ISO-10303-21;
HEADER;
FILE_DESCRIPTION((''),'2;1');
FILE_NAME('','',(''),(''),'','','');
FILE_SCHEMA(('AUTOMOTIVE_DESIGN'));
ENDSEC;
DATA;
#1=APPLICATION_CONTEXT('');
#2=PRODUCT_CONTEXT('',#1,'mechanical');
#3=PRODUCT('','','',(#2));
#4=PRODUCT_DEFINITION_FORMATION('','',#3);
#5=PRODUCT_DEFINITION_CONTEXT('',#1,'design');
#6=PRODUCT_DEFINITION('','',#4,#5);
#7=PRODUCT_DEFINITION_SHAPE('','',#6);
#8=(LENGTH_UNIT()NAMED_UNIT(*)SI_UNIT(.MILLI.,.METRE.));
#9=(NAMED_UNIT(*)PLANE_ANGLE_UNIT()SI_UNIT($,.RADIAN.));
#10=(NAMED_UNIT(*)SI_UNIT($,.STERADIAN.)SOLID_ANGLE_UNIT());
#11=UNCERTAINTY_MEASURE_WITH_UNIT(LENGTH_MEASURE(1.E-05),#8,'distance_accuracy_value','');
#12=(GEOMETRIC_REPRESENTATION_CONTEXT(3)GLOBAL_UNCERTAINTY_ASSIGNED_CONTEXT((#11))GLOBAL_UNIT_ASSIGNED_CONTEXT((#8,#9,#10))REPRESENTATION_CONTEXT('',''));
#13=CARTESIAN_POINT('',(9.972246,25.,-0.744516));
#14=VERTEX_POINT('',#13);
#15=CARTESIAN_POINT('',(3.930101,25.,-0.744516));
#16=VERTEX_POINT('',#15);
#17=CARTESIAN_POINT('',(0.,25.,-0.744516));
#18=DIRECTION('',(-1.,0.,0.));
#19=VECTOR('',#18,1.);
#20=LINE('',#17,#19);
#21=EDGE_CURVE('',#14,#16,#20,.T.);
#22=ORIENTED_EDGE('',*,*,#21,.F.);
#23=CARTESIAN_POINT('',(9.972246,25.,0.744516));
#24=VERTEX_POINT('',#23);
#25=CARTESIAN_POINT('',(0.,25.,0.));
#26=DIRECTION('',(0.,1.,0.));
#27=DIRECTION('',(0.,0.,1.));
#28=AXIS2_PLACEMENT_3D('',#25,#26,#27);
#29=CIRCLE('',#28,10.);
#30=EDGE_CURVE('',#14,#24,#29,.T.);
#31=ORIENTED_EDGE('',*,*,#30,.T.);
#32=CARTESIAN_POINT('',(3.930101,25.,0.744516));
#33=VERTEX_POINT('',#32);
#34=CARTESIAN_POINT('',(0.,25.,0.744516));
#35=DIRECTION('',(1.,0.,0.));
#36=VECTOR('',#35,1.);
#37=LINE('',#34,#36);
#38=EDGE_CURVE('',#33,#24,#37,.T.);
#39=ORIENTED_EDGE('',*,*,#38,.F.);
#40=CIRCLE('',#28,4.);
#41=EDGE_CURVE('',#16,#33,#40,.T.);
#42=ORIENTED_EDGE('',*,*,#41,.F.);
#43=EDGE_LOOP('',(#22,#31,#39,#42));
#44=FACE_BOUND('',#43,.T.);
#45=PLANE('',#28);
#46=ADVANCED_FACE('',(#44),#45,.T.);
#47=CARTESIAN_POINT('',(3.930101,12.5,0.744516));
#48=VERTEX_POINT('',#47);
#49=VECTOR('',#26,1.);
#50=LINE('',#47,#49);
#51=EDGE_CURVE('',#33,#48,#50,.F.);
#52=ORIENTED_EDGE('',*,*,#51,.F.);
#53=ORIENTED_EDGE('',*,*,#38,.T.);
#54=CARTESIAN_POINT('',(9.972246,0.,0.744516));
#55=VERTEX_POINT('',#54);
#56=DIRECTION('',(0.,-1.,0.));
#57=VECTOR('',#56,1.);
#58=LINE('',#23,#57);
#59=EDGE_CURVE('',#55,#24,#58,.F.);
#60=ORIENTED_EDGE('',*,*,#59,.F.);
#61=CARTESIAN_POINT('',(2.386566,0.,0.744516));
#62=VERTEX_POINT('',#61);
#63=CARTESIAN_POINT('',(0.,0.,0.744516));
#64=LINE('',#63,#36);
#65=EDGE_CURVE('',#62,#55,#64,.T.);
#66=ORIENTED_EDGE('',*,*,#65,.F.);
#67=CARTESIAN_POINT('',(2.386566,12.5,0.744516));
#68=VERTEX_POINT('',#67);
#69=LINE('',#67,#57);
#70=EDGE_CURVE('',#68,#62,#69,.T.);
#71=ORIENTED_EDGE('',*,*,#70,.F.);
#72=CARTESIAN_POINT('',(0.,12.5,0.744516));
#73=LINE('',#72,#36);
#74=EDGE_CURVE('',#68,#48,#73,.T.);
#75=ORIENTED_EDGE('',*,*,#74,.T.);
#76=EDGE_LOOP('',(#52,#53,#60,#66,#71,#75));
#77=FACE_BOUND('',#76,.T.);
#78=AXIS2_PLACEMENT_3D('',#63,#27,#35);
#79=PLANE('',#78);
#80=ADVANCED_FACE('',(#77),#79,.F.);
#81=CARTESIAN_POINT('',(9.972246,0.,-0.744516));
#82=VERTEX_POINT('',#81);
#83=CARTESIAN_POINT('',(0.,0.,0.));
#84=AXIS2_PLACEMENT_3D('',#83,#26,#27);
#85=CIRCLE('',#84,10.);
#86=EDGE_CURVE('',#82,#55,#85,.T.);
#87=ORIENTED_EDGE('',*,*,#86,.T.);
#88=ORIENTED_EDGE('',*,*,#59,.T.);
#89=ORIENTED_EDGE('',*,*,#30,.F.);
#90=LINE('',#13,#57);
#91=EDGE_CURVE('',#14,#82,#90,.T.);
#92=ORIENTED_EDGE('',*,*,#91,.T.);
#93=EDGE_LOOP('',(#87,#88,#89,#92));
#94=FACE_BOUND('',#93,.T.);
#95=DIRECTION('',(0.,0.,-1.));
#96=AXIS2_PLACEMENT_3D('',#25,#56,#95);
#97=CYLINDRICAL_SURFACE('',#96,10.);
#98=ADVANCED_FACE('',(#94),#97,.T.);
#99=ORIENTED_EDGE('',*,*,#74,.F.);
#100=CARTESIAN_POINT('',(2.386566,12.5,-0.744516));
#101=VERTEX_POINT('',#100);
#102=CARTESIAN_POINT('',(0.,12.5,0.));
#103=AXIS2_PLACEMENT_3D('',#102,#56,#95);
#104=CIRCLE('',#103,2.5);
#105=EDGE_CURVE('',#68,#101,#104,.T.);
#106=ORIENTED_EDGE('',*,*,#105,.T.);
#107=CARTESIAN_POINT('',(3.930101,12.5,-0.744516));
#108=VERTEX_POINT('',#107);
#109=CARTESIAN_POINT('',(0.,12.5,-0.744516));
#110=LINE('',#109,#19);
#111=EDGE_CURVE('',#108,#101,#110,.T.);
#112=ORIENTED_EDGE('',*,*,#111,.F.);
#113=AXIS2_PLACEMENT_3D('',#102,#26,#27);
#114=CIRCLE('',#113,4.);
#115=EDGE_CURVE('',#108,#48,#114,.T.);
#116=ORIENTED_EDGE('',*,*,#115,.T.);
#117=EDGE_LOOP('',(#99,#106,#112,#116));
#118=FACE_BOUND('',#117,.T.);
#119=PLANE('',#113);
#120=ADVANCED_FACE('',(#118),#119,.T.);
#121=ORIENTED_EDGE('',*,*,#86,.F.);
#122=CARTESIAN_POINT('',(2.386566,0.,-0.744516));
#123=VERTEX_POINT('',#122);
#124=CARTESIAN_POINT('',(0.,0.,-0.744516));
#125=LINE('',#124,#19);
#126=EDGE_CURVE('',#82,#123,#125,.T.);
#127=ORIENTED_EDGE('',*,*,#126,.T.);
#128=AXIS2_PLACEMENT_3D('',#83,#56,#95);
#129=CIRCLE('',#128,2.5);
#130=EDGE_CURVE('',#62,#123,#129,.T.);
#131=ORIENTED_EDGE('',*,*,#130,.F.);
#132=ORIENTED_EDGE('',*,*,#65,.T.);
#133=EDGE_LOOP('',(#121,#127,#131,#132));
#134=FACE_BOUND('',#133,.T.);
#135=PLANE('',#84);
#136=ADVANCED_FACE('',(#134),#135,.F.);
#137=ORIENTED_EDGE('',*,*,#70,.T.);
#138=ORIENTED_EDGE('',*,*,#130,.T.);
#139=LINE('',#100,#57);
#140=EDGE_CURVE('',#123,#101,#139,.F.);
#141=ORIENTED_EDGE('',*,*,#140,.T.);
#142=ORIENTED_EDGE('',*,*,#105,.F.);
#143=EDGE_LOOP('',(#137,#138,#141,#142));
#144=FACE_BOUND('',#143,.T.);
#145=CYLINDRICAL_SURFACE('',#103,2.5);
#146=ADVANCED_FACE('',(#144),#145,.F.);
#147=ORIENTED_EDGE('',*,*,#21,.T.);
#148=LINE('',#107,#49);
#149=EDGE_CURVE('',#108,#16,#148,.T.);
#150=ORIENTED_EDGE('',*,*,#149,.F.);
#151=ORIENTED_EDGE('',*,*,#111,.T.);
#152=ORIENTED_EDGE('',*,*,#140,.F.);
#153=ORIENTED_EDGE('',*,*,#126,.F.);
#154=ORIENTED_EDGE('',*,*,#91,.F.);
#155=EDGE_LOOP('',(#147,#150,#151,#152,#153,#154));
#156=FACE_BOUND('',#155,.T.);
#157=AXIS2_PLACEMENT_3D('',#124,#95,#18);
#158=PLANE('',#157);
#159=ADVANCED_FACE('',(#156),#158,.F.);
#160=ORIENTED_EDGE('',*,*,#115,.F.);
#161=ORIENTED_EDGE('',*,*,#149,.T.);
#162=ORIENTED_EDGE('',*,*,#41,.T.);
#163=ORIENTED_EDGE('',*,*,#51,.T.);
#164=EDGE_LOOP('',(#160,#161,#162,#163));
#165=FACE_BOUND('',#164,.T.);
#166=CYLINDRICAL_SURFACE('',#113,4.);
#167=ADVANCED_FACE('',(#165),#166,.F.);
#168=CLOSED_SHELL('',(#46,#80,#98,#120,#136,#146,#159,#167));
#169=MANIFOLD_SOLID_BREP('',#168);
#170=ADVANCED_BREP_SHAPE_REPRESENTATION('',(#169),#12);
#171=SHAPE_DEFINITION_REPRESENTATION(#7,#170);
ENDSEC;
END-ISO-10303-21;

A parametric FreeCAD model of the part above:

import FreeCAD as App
import Part
import Sketcher

doc = App.newDocument("Part")
body = doc.addObject("PartDesign::Body", "Body")

# Sketch on XZ plane
sketch1 = body.newObject("Sketcher::SketchObject", "Sketch")
sketch1.AttachmentSupport = (doc.getObject("XZ_Plane"), [""])
sketch1.MapMode = "FlatFace"
sketch1.addGeometry(Part.Circle(App.Vector(0, 0, 0), App.Vector(0, 0, 1), 10), False)
sketch1.addConstraint([
    Sketcher.Constraint("Coincident", 0, 3, -1, 1),
    Sketcher.Constraint("Diameter", 0, 20.0),
])
pad1 = body.newObject("PartDesign::Pad", "Pad")
pad1.Profile = sketch1
pad1.Length = 25
pad1.Reversed = True

# Sketch on XZ plane
sketch2 = body.newObject("Sketcher::SketchObject", "Sketch001")
sketch2.AttachmentSupport = (doc.getObject("XZ_Plane"), [""])
sketch2.MapMode = "FlatFace"
sketch2.AttachmentOffset = App.Placement(App.Vector(0, 0, -25), App.Rotation())
sketch2.addGeometry(Part.Circle(App.Vector(0, 0, 0), App.Vector(0, 0, 1), 4), False)
sketch2.addConstraint([
    Sketcher.Constraint("Coincident", 0, 3, -1, 1),
    Sketcher.Constraint("Diameter", 0, 8.0),
])
pocket1 = body.newObject("PartDesign::Pocket", "Pocket")
pocket1.Profile = sketch2
pocket1.Length = 12.5
pocket1.Reversed = True

# Sketch on XZ plane
sketch3 = body.newObject("Sketcher::SketchObject", "Sketch002")
sketch3.AttachmentSupport = (doc.getObject("XZ_Plane"), [""])
sketch3.MapMode = "FlatFace"
sketch3.addGeometry(Part.Circle(App.Vector(0, 0, 0), App.Vector(0, 0, 1), 2.5), False)
sketch3.addConstraint([
    Sketcher.Constraint("Coincident", 0, 3, -1, 1),
    Sketcher.Constraint("Diameter", 0, 5.0),
])
pocket2 = body.newObject("PartDesign::Pocket", "Pocket001")
pocket2.Profile = sketch3
pocket2.Length = 12.5

# Sketch on XZ plane
sketch4 = body.newObject("Sketcher::SketchObject", "Sketch003")
sketch4.AttachmentSupport = (doc.getObject("XZ_Plane"), [""])
sketch4.MapMode = "FlatFace"
sketch4.AttachmentOffset = App.Placement(App.Vector(0, 0, -25), App.Rotation())
sketch4.addGeometry([
    Part.LineSegment(App.Vector(0, -0.7, 0), App.Vector(0, 0.7, 0)),
    Part.LineSegment(App.Vector(0, 0.7, 0), App.Vector(12.4, 0.7, 0)),
    Part.LineSegment(App.Vector(12.4, 0.7, 0), App.Vector(12.4, -0.7, 0)),
    Part.LineSegment(App.Vector(12.4, -0.7, 0), App.Vector(0, -0.7, 0)),
], False)
sketch4.addConstraint([
    Sketcher.Constraint("Coincident", 0, 2, 1, 1),
    Sketcher.Constraint("Coincident", 1, 2, 2, 1),
    Sketcher.Constraint("Coincident", 2, 2, 3, 1),
    Sketcher.Constraint("Coincident", 3, 2, 0, 1),
    Sketcher.Constraint("Vertical", 0),
    Sketcher.Constraint("Horizontal", 1),
    Sketcher.Constraint("Vertical", 2),
    Sketcher.Constraint("Horizontal", 3),
    Sketcher.Constraint("Symmetric", 0, 2, 3, 2, -1, 1),
    Sketcher.Constraint("DistanceX", 1, 1, 1, 2, 12.43473),
    Sketcher.Constraint("DistanceY", 0, 1, 0, 2, 1.489033),
])
pocket3 = body.newObject("PartDesign::Pocket", "Pocket002")
pocket3.Profile = sketch4
pocket3.Length = 25
pocket3.Reversed = True

doc.recompute()
